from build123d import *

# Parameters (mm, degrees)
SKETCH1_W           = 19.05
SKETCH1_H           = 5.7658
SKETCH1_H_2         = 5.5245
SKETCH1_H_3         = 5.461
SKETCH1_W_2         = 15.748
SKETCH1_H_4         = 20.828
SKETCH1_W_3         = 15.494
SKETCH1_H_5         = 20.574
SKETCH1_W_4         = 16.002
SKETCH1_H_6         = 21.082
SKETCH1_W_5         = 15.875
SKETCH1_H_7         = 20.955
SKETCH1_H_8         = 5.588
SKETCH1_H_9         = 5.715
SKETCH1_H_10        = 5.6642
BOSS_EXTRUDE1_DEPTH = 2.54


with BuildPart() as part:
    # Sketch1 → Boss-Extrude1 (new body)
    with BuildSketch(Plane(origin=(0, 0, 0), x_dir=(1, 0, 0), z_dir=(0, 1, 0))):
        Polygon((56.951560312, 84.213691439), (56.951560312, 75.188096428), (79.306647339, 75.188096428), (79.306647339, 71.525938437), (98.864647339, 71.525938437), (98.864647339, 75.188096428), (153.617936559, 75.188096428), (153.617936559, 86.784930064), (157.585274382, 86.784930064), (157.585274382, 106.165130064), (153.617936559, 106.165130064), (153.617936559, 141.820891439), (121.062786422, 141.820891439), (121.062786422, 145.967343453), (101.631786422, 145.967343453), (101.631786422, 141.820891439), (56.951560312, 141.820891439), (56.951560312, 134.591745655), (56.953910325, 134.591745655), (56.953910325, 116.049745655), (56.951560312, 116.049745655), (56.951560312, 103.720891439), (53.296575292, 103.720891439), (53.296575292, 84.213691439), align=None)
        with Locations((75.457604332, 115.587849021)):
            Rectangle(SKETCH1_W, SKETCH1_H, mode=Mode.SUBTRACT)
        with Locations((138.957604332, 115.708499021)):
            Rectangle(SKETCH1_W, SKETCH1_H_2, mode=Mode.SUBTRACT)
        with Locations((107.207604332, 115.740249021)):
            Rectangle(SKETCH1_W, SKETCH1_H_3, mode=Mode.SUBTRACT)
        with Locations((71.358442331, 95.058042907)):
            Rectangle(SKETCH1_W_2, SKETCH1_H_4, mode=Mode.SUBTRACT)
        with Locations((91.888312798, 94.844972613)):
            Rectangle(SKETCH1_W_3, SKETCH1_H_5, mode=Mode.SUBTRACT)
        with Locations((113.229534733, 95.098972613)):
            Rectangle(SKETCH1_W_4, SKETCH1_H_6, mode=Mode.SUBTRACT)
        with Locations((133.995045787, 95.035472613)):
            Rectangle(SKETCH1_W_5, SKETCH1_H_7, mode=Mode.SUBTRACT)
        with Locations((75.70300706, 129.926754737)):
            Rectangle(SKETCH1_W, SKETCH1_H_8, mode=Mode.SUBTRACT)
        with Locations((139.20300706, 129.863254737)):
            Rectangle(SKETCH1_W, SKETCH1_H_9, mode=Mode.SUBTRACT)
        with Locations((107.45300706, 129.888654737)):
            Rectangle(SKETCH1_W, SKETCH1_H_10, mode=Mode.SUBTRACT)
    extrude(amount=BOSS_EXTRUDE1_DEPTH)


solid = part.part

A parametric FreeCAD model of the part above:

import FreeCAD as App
import Part
import Sketcher
from FreeCAD import Vector
Q = App.Units.Quantity

doc = App.newDocument("Part")
params = doc.addObject("Spreadsheet::Sheet", "Params")
for row, (alias, value) in enumerate([
    ("sketch1_width", "0.77 in"),
    ("sketch1_width2", "0.62 in"),
    ("sketch1_width3", "0.61 in"),
    ("sketch1_width4", "0.63 in"),
    ("sketch1_width5", "0.75 in"),
    ("pad1_length", "0.1 in"),
], start=1):
    params.set(f"A{row}", alias)
    params.set(f"B{row}", "=" + value)
    params.setAlias(f"B{row}", alias)

body = doc.addObject("PartDesign::Body", "Body")

# Sketch on XZ plane
sketch1 = body.newObject("Sketcher::SketchObject", "Sketch")
sketch1.AttachmentSupport = (doc.getObject("XZ_Plane"), [""])
sketch1.MapMode = "FlatFace"
sketch1.addGeometry([
    Part.LineSegment(Vector(56.95156, -84.213691, 0), Vector(56.95156, -75.188096, 0)),  # 0
    Part.LineSegment(Vector(56.95156, -75.188096, 0), Vector(79.306647, -75.188096, 0)),  # 1
    Part.LineSegment(Vector(79.306647, -75.188096, 0), Vector(79.306647, -71.525938, 0)),  # 2
    Part.LineSegment(Vector(79.306647, -71.525938, 0), Vector(98.864647, -71.525938, 0)),  # 3
    Part.LineSegment(Vector(98.864647, -71.525938, 0), Vector(98.864647, -75.188096, 0)),  # 4
    Part.LineSegment(Vector(98.864647, -75.188096, 0), Vector(153.617937, -75.188096, 0)),  # 5
    Part.LineSegment(Vector(153.617937, -75.188096, 0), Vector(153.617937, -86.78493, 0)),  # 6
    Part.LineSegment(Vector(153.617937, -86.78493, 0), Vector(157.585274, -86.78493, 0)),  # 7
    Part.LineSegment(Vector(157.585274, -86.78493, 0), Vector(157.585274, -106.16513, 0)),  # 8
    Part.LineSegment(Vector(157.585274, -106.16513, 0), Vector(153.617937, -106.16513, 0)),  # 9
    Part.LineSegment(Vector(153.617937, -106.16513, 0), Vector(153.617937, -141.820891, 0)),  # 10
    Part.LineSegment(Vector(153.617937, -141.820891, 0), Vector(121.062786, -141.820891, 0)),  # 11
    Part.LineSegment(Vector(121.062786, -141.820891, 0), Vector(121.062786, -145.967343, 0)),  # 12
    Part.LineSegment(Vector(121.062786, -145.967343, 0), Vector(101.631786, -145.967343, 0)),  # 13
    Part.LineSegment(Vector(101.631786, -145.967343, 0), Vector(101.631786, -141.820891, 0)),  # 14
    Part.LineSegment(Vector(101.631786, -141.820891, 0), Vector(56.95156, -141.820891, 0)),  # 15
    Part.LineSegment(Vector(56.95156, -141.820891, 0), Vector(56.95156, -134.591746, 0)),  # 16
    Part.LineSegment(Vector(56.95156, -134.591746, 0), Vector(56.95391, -134.591746, 0)),  # 17
    Part.LineSegment(Vector(56.95391, -134.591746, 0), Vector(56.95391, -116.049746, 0)),  # 18
    Part.LineSegment(Vector(56.95391, -116.049746, 0), Vector(56.95156, -116.049746, 0)),  # 19
    Part.LineSegment(Vector(56.95156, -116.049746, 0), Vector(56.95156, -103.720891, 0)),  # 20
    Part.LineSegment(Vector(56.95156, -103.720891, 0), Vector(53.296575, -103.720891, 0)),  # 21
    Part.LineSegment(Vector(53.296575, -103.720891, 0), Vector(53.296575, -84.213691, 0)),  # 22
    Part.LineSegment(Vector(53.296575, -84.213691, 0), Vector(56.95156, -84.213691, 0)),  # 23
    Part.LineSegment(Vector(79.232442, -84.644043, 0), Vector(63.484442, -84.644043, 0)),  # 24
    Part.LineSegment(Vector(63.484442, -84.644043, 0), Vector(63.484442, -105.472043, 0)),  # 25
    Part.LineSegment(Vector(63.484442, -105.472043, 0), Vector(79.232442, -105.472043, 0)),  # 26
    Part.LineSegment(Vector(79.232442, -105.472043, 0), Vector(79.232442, -84.644043, 0)),  # 27
    Part.LineSegment(Vector(99.635313, -84.557973, 0), Vector(84.141313, -84.557973, 0)),  # 28
    Part.LineSegment(Vector(84.141313, -84.557973, 0), Vector(84.141313, -105.131973, 0)),  # 29
    Part.LineSegment(Vector(84.141313, -105.131973, 0), Vector(99.635313, -105.131973, 0)),  # 30
    Part.LineSegment(Vector(99.635313, -105.131973, 0), Vector(99.635313, -84.557973, 0)),  # 31
    Part.LineSegment(Vector(121.230535, -84.557973, 0), Vector(105.228535, -84.557973, 0)),  # 32
    Part.LineSegment(Vector(105.228535, -84.557973, 0), Vector(105.228535, -105.639973, 0)),  # 33
    Part.LineSegment(Vector(105.228535, -105.639973, 0), Vector(121.230535, -105.639973, 0)),  # 34
    Part.LineSegment(Vector(121.230535, -105.639973, 0), Vector(121.230535, -84.557973, 0)),  # 35
    Part.LineSegment(Vector(141.932546, -84.557973, 0), Vector(126.057546, -84.557973, 0)),  # 36
    Part.LineSegment(Vector(126.057546, -84.557973, 0), Vector(126.057546, -105.512973, 0)),  # 37
    Part.LineSegment(Vector(126.057546, -105.512973, 0), Vector(141.932546, -105.512973, 0)),  # 38
    Part.LineSegment(Vector(141.932546, -105.512973, 0), Vector(141.932546, -84.557973, 0)),  # 39
    Part.LineSegment(Vector(84.982604, -112.704949, 0), Vector(65.932604, -112.704949, 0)),  # 40
    Part.LineSegment(Vector(65.932604, -112.704949, 0), Vector(65.932604, -118.470749, 0)),  # 41
    Part.LineSegment(Vector(65.932604, -118.470749, 0), Vector(84.982604, -118.470749, 0)),  # 42
    Part.LineSegment(Vector(84.982604, -118.470749, 0), Vector(84.982604, -112.704949, 0)),  # 43
    Part.LineSegment(Vector(85.228007, -127.132755, 0), Vector(66.178007, -127.132755, 0)),  # 44
    Part.LineSegment(Vector(66.178007, -127.132755, 0), Vector(66.178007, -132.720755, 0)),  # 45
    Part.LineSegment(Vector(66.178007, -132.720755, 0), Vector(85.228007, -132.720755, 0)),  # 46
    Part.LineSegment(Vector(85.228007, -132.720755, 0), Vector(85.228007, -127.132755, 0)),  # 47
    Part.LineSegment(Vector(116.732604, -113.009749, 0), Vector(97.682604, -113.009749, 0)),  # 48
    Part.LineSegment(Vector(97.682604, -113.009749, 0), Vector(97.682604, -118.470749, 0)),  # 49
    Part.LineSegment(Vector(97.682604, -118.470749, 0), Vector(116.732604, -118.470749, 0)),  # 50
    Part.LineSegment(Vector(116.732604, -118.470749, 0), Vector(116.732604, -113.009749, 0)),  # 51
    Part.LineSegment(Vector(148.482604, -112.946249, 0), Vector(129.432604, -112.946249, 0)),  # 52
    Part.LineSegment(Vector(129.432604, -112.946249, 0), Vector(129.432604, -118.470749, 0)),  # 53
    Part.LineSegment(Vector(129.432604, -118.470749, 0), Vector(148.482604, -118.470749, 0)),  # 54
    Part.LineSegment(Vector(148.482604, -118.470749, 0), Vector(148.482604, -112.946249, 0)),  # 55
    Part.LineSegment(Vector(116.978007, -127.056555, 0), Vector(97.928007, -127.056555, 0)),  # 56
    Part.LineSegment(Vector(97.928007, -127.056555, 0), Vector(97.928007, -132.720755, 0)),  # 57
    Part.LineSegment(Vector(97.928007, -132.720755, 0), Vector(116.978007, -132.720755, 0)),  # 58
    Part.LineSegment(Vector(116.978007, -132.720755, 0), Vector(116.978007, -127.056555, 0)),  # 59
    Part.LineSegment(Vector(148.728007, -127.005755, 0), Vector(129.678007, -127.005755, 0)),  # 60
    Part.LineSegment(Vector(129.678007, -127.005755, 0), Vector(129.678007, -132.720755, 0)),  # 61
    Part.LineSegment(Vector(129.678007, -132.720755, 0), Vector(148.728007, -132.720755, 0)),  # 62
    Part.LineSegment(Vector(148.728007, -132.720755, 0), Vector(148.728007, -127.005755, 0)),  # 63
], False)
sketch1.addConstraint([
    Sketcher.Constraint("Coincident", 0, 2, 1, 1),
    Sketcher.Constraint("Coincident", 1, 2, 2, 1),
    Sketcher.Constraint("Coincident", 2, 2, 3, 1),
    Sketcher.Constraint("Coincident", 3, 2, 4, 1),
    Sketcher.Constraint("Coincident", 4, 2, 5, 1),
    Sketcher.Constraint("Coincident", 5, 2, 6, 1),
    Sketcher.Constraint("Coincident", 6, 2, 7, 1),
    Sketcher.Constraint("Coincident", 7, 2, 8, 1),
    Sketcher.Constraint("Coincident", 8, 2, 9, 1),
    Sketcher.Constraint("Coincident", 9, 2, 10, 1),
    Sketcher.Constraint("Coincident", 10, 2, 11, 1),
    Sketcher.Constraint("Coincident", 11, 2, 12, 1),
    Sketcher.Constraint("Coincident", 12, 2, 13, 1),
    Sketcher.Constraint("Coincident", 13, 2, 14, 1),
    Sketcher.Constraint("Coincident", 14, 2, 15, 1),
    Sketcher.Constraint("Coincident", 15, 2, 16, 1),
    Sketcher.Constraint("Coincident", 16, 2, 17, 1),
    Sketcher.Constraint("Coincident", 17, 2, 18, 1),
    Sketcher.Constraint("Coincident", 18, 2, 19, 1),
    Sketcher.Constraint("Coincident", 19, 2, 20, 1),
    Sketcher.Constraint("Coincident", 20, 2, 21, 1),
    Sketcher.Constraint("Coincident", 21, 2, 22, 1),
    Sketcher.Constraint("Coincident", 22, 2, 23, 1),
    Sketcher.Constraint("Coincident", 23, 2, 0, 1),
    Sketcher.Constraint("Coincident", 24, 2, 25, 1),
    Sketcher.Constraint("Coincident", 25, 2, 26, 1),
    Sketcher.Constraint("Coincident", 26, 2, 27, 1),
    Sketcher.Constraint("Coincident", 27, 2, 24, 1),
    Sketcher.Constraint("Coincident", 28, 2, 29, 1),
    Sketcher.Constraint("Coincident", 29, 2, 30, 1),
    Sketcher.Constraint("Coincident", 30, 2, 31, 1),
    Sketcher.Constraint("Coincident", 31, 2, 28, 1),
    Sketcher.Constraint("Coincident", 32, 2, 33, 1),
    Sketcher.Constraint("Coincident", 33, 2, 34, 1),
    Sketcher.Constraint("Coincident", 34, 2, 35, 1),
    Sketcher.Constraint("Coincident", 35, 2, 32, 1),
    Sketcher.Constraint("Coincident", 36, 2, 37, 1),
    Sketcher.Constraint("Coincident", 37, 2, 38, 1),
    Sketcher.Constraint("Coincident", 38, 2, 39, 1),
    Sketcher.Constraint("Coincident", 39, 2, 36, 1),
    Sketcher.Constraint("Coincident", 40, 2, 41, 1),
    Sketcher.Constraint("Coincident", 41, 2, 42, 1),
    Sketcher.Constraint("Coincident", 42, 2, 43, 1),
    Sketcher.Constraint("Coincident", 43, 2, 40, 1),
    Sketcher.Constraint("Coincident", 44, 2, 45, 1),
    Sketcher.Constraint("Coincident", 45, 2, 46, 1),
    Sketcher.Constraint("Coincident", 46, 2, 47, 1),
    Sketcher.Constraint("Coincident", 47, 2, 44, 1),
    Sketcher.Constraint("Coincident", 48, 2, 49, 1),
    Sketcher.Constraint("Coincident", 49, 2, 50, 1),
    Sketcher.Constraint("Coincident", 50, 2, 51, 1),
    Sketcher.Constraint("Coincident", 51, 2, 48, 1),
    Sketcher.Constraint("Coincident", 52, 2, 53, 1),
    Sketcher.Constraint("Coincident", 53, 2, 54, 1),
    Sketcher.Constraint("Coincident", 54, 2, 55, 1),
    Sketcher.Constraint("Coincident", 55, 2, 52, 1),
    Sketcher.Constraint("Coincident", 56, 2, 57, 1),
    Sketcher.Constraint("Coincident", 57, 2, 58, 1),
    Sketcher.Constraint("Coincident", 58, 2, 59, 1),
    Sketcher.Constraint("Coincident", 59, 2, 56, 1),
    Sketcher.Constraint("Coincident", 60, 2, 61, 1),
    Sketcher.Constraint("Coincident", 61, 2, 62, 1),
    Sketcher.Constraint("Coincident", 62, 2, 63, 1),
    Sketcher.Constraint("Coincident", 63, 2, 60, 1),
    Sketcher.Constraint("Vertical", 0),
    Sketcher.Constraint("Horizontal", 1),
    Sketcher.Constraint("Vertical", 2),
    Sketcher.Constraint("Horizontal", 3),
    Sketcher.Constraint("Vertical", 4),
    Sketcher.Constraint("Horizontal", 5),
    Sketcher.Constraint("Vertical", 6),
    Sketcher.Constraint("Horizontal", 7),
    Sketcher.Constraint("Vertical", 8),
    Sketcher.Constraint("Horizontal", 9),
    Sketcher.Constraint("Vertical", 10),
    Sketcher.Constraint("Horizontal", 11),
    Sketcher.Constraint("Vertical", 12),
    Sketcher.Constraint("Horizontal", 13),
    Sketcher.Constraint("Vertical", 14),
    Sketcher.Constraint("Horizontal", 15),
    Sketcher.Constraint("Vertical", 16),
    Sketcher.Constraint("Horizontal", 17),
    Sketcher.Constraint("Vertical", 18),
    Sketcher.Constraint("Horizontal", 19),
    Sketcher.Constraint("Vertical", 20),
    Sketcher.Constraint("Horizontal", 21),
    Sketcher.Constraint("Vertical", 22),
    Sketcher.Constraint("Horizontal", 23),
    Sketcher.Constraint("Horizontal", 24),
    Sketcher.Constraint("Vertical", 25),
    Sketcher.Constraint("Horizontal", 26),
    Sketcher.Constraint("Vertical", 27),
    Sketcher.Constraint("Horizontal", 28),
    Sketcher.Constraint("Vertical", 29),
    Sketcher.Constraint("Horizontal", 30),
    Sketcher.Constraint("Vertical", 31),
    Sketcher.Constraint("Horizontal", 32),
    Sketcher.Constraint("Vertical", 33),
    Sketcher.Constraint("Horizontal", 34),
    Sketcher.Constraint("Vertical", 35),
    Sketcher.Constraint("Horizontal", 36),
    Sketcher.Constraint("Vertical", 37),
    Sketcher.Constraint("Horizontal", 38),
    Sketcher.Constraint("Vertical", 39),
    Sketcher.Constraint("Horizontal", 40),
    Sketcher.Constraint("Vertical", 41),
    Sketcher.Constraint("Horizontal", 42),
    Sketcher.Constraint("Vertical", 43),
    Sketcher.Constraint("Horizontal", 44),
    Sketcher.Constraint("Vertical", 45),
    Sketcher.Constraint("Horizontal", 46),
    Sketcher.Constraint("Vertical", 47),
    Sketcher.Constraint("Horizontal", 48),
    Sketcher.Constraint("Vertical", 49),
    Sketcher.Constraint("Horizontal", 50),
    Sketcher.Constraint("Vertical", 51),
    Sketcher.Constraint("Horizontal", 52),
    Sketcher.Constraint("Vertical", 53),
    Sketcher.Constraint("Horizontal", 54),
    Sketcher.Constraint("Vertical", 55),
    Sketcher.Constraint("Horizontal", 56),
    Sketcher.Constraint("Vertical", 57),
    Sketcher.Constraint("Horizontal", 58),
    Sketcher.Constraint("Vertical", 59),
    Sketcher.Constraint("Horizontal", 60),
    Sketcher.Constraint("Vertical", 61),
    Sketcher.Constraint("Horizontal", 62),
    Sketcher.Constraint("Vertical", 63),
    Sketcher.Constraint("Horizontal", 1, 2, 4, 2),
    Sketcher.Constraint("Horizontal", 11, 2, 14, 2),
    Sketcher.Constraint("Horizontal", 31, 2, 32, 2),
    Sketcher.Constraint("Horizontal", 35, 2, 36, 2),
    Sketcher.Constraint("Horizontal", 42, 2, 49, 2),
    Sketcher.Constraint("Horizontal", 50, 2, 53, 2),
    Sketcher.Constraint("Horizontal", 46, 2, 57, 2),
    Sketcher.Constraint("Horizontal", 58, 2, 61, 2),
    Sketcher.Constraint("Vertical", 6, 2, 9, 2),
    Sketcher.Constraint("Vertical", 0, 2, 15, 2),
    Sketcher.Constraint("Vertical", 16, 2, 19, 2),
    Sketcher.Constraint("Equal", 42, 44),
    Sketcher.Constraint("Equal", 46, 48),
    Sketcher.Constraint("Equal", 50, 52),
    Sketcher.Constraint("Equal", 54, 56),
    Sketcher.Constraint("Equal", 58, 60),
    Sketcher.Constraint("DistanceX", 3, 1, 3, 2, Q("0.77 in")),
    Sketcher.Constraint("DistanceX", 24, 2, 24, 1, Q("0.62 in")),
    Sketcher.Constraint("DistanceX", 28, 2, 28, 1, Q("0.61 in")),
    Sketcher.Constraint("DistanceX", 32, 2, 32, 1, Q("0.63 in")),
    Sketcher.Constraint("DistanceX", 40, 2, 40, 1, Q("0.75 in")),
    Sketcher.Constraint("DistanceY", 18, 1, 18, 2, Q("0.73 in")),
    Sketcher.Constraint("DistanceY", 25, 2, 25, 1, Q("0.82 in")),
    Sketcher.Constraint("DistanceY", 29, 2, 29, 1, Q("0.81 in")),
    Sketcher.Constraint("DistanceY", 33, 2, 33, 1, Q("0.83 in")),
    Sketcher.Constraint("DistanceY", 45, 2, 45, 1, Q("0.22 in")),
    Sketcher.Constraint("DistanceX", 13, 2, 13, 1, Q("0.765 in")),
    Sketcher.Constraint("DistanceX", 36, 2, 36, 1, Q("0.625 in")),
    Sketcher.Constraint("DistanceY", 8, 2, 8, 1, Q("0.763 in")),
    Sketcher.Constraint("DistanceY", 22, 1, 22, 2, Q("0.768 in")),
    Sketcher.Constraint("DistanceY", 37, 2, 37, 1, Q("0.825 in")),
    Sketcher.Constraint("DistanceY", 41, 2, 41, 1, Q("0.227 in")),
    Sketcher.Constraint("DistanceY", 49, 2, 49, 1, Q("0.215 in")),
    Sketcher.Constraint("DistanceY", 57, 2, 57, 1, Q("0.223 in")),
    Sketcher.Constraint("DistanceY", 61, 2, 61, 1, Q("0.225 in")),
    Sketcher.Constraint("DistanceY", 53, 2, 53, 1, Q("0.2175 in")),
    Sketcher.Constraint("DistanceX", 5, 1, 5, 2, 54.753289),
    Sketcher.Constraint("DistanceX", 11, 2, 11, 1, 32.55515),
    Sketcher.Constraint("DistanceX", 17, 1, 17, 2, 0.00235),
    Sketcher.Constraint("DistanceY", 10, 2, 10, 1, 35.655761),
    Sketcher.Constraint("DistanceX", 1, 1, 1, 2, 22.355087),
    Sketcher.Constraint("DistanceX", 7, 1, 7, 2, 3.967338),
    Sketcher.Constraint("DistanceX", 21, 2, 21, 1, 3.654985),
    Sketcher.Constraint("DistanceY", 0, 1, 0, 2, 9.025595),
    Sketcher.Constraint("DistanceY", 2, 1, 2, 2, 3.662158),
    Sketcher.Constraint("DistanceY", 6, 2, 6, 1, 11.596834),
    Sketcher.Constraint("DistanceY", 12, 2, 12, 1, 4.146452),
    Sketcher.Constraint("DistanceY", 16, 1, 16, 2, 7.229146),
    Sketcher.Constraint("DistanceX", -1, 1, 0, 2, 56.95156),
    Sketcher.Constraint("DistanceY", 2, 2, -1, 1, 71.525938),
    Sketcher.Constraint("DistanceY", 40, 2, -1, 1, 112.704949),
    Sketcher.Constraint("DistanceX", -1, 1, 24, 2, 63.484442),
    Sketcher.Constraint("DistanceY", 24, 2, -1, 1, 84.644043),
    Sketcher.Constraint("DistanceX", -1, 1, 28, 2, 84.141313),
    Sketcher.Constraint("DistanceY", 28, 2, -1, 1, 84.557973),
    Sketcher.Constraint("DistanceX", -1, 1, 32, 2, 105.228535),
    Sketcher.Constraint("DistanceX", -1, 1, 36, 2, 126.057546),
    Sketcher.Constraint("DistanceX", -1, 1, 40, 2, 65.932604),
    Sketcher.Constraint("DistanceX", -1, 1, 44, 2, 66.178007),
    Sketcher.Constraint("DistanceY", 44, 2, -1, 1, 127.132755),
    Sketcher.Constraint("DistanceX", -1, 1, 48, 2, 97.682604),
    Sketcher.Constraint("DistanceX", -1, 1, 52, 2, 129.432604),
    Sketcher.Constraint("DistanceX", -1, 1, 56, 2, 97.928007),
    Sketcher.Constraint("DistanceX", -1, 1, 60, 2, 129.678007),
])
sketch1.setExpression("Constraints[144]", "Params.sketch1_width")
sketch1.setExpression("Constraints[145]", "Params.sketch1_width2")
sketch1.setExpression("Constraints[146]", "Params.sketch1_width3")
sketch1.setExpression("Constraints[147]", "Params.sketch1_width4")
sketch1.setExpression("Constraints[148]", "Params.sketch1_width5")
pad1 = body.newObject("PartDesign::Pad", "Pad")
pad1.Profile = sketch1
pad1.setExpression("Length", "Params.pad1_length")
pad1.Reversed = True

doc.recompute()
